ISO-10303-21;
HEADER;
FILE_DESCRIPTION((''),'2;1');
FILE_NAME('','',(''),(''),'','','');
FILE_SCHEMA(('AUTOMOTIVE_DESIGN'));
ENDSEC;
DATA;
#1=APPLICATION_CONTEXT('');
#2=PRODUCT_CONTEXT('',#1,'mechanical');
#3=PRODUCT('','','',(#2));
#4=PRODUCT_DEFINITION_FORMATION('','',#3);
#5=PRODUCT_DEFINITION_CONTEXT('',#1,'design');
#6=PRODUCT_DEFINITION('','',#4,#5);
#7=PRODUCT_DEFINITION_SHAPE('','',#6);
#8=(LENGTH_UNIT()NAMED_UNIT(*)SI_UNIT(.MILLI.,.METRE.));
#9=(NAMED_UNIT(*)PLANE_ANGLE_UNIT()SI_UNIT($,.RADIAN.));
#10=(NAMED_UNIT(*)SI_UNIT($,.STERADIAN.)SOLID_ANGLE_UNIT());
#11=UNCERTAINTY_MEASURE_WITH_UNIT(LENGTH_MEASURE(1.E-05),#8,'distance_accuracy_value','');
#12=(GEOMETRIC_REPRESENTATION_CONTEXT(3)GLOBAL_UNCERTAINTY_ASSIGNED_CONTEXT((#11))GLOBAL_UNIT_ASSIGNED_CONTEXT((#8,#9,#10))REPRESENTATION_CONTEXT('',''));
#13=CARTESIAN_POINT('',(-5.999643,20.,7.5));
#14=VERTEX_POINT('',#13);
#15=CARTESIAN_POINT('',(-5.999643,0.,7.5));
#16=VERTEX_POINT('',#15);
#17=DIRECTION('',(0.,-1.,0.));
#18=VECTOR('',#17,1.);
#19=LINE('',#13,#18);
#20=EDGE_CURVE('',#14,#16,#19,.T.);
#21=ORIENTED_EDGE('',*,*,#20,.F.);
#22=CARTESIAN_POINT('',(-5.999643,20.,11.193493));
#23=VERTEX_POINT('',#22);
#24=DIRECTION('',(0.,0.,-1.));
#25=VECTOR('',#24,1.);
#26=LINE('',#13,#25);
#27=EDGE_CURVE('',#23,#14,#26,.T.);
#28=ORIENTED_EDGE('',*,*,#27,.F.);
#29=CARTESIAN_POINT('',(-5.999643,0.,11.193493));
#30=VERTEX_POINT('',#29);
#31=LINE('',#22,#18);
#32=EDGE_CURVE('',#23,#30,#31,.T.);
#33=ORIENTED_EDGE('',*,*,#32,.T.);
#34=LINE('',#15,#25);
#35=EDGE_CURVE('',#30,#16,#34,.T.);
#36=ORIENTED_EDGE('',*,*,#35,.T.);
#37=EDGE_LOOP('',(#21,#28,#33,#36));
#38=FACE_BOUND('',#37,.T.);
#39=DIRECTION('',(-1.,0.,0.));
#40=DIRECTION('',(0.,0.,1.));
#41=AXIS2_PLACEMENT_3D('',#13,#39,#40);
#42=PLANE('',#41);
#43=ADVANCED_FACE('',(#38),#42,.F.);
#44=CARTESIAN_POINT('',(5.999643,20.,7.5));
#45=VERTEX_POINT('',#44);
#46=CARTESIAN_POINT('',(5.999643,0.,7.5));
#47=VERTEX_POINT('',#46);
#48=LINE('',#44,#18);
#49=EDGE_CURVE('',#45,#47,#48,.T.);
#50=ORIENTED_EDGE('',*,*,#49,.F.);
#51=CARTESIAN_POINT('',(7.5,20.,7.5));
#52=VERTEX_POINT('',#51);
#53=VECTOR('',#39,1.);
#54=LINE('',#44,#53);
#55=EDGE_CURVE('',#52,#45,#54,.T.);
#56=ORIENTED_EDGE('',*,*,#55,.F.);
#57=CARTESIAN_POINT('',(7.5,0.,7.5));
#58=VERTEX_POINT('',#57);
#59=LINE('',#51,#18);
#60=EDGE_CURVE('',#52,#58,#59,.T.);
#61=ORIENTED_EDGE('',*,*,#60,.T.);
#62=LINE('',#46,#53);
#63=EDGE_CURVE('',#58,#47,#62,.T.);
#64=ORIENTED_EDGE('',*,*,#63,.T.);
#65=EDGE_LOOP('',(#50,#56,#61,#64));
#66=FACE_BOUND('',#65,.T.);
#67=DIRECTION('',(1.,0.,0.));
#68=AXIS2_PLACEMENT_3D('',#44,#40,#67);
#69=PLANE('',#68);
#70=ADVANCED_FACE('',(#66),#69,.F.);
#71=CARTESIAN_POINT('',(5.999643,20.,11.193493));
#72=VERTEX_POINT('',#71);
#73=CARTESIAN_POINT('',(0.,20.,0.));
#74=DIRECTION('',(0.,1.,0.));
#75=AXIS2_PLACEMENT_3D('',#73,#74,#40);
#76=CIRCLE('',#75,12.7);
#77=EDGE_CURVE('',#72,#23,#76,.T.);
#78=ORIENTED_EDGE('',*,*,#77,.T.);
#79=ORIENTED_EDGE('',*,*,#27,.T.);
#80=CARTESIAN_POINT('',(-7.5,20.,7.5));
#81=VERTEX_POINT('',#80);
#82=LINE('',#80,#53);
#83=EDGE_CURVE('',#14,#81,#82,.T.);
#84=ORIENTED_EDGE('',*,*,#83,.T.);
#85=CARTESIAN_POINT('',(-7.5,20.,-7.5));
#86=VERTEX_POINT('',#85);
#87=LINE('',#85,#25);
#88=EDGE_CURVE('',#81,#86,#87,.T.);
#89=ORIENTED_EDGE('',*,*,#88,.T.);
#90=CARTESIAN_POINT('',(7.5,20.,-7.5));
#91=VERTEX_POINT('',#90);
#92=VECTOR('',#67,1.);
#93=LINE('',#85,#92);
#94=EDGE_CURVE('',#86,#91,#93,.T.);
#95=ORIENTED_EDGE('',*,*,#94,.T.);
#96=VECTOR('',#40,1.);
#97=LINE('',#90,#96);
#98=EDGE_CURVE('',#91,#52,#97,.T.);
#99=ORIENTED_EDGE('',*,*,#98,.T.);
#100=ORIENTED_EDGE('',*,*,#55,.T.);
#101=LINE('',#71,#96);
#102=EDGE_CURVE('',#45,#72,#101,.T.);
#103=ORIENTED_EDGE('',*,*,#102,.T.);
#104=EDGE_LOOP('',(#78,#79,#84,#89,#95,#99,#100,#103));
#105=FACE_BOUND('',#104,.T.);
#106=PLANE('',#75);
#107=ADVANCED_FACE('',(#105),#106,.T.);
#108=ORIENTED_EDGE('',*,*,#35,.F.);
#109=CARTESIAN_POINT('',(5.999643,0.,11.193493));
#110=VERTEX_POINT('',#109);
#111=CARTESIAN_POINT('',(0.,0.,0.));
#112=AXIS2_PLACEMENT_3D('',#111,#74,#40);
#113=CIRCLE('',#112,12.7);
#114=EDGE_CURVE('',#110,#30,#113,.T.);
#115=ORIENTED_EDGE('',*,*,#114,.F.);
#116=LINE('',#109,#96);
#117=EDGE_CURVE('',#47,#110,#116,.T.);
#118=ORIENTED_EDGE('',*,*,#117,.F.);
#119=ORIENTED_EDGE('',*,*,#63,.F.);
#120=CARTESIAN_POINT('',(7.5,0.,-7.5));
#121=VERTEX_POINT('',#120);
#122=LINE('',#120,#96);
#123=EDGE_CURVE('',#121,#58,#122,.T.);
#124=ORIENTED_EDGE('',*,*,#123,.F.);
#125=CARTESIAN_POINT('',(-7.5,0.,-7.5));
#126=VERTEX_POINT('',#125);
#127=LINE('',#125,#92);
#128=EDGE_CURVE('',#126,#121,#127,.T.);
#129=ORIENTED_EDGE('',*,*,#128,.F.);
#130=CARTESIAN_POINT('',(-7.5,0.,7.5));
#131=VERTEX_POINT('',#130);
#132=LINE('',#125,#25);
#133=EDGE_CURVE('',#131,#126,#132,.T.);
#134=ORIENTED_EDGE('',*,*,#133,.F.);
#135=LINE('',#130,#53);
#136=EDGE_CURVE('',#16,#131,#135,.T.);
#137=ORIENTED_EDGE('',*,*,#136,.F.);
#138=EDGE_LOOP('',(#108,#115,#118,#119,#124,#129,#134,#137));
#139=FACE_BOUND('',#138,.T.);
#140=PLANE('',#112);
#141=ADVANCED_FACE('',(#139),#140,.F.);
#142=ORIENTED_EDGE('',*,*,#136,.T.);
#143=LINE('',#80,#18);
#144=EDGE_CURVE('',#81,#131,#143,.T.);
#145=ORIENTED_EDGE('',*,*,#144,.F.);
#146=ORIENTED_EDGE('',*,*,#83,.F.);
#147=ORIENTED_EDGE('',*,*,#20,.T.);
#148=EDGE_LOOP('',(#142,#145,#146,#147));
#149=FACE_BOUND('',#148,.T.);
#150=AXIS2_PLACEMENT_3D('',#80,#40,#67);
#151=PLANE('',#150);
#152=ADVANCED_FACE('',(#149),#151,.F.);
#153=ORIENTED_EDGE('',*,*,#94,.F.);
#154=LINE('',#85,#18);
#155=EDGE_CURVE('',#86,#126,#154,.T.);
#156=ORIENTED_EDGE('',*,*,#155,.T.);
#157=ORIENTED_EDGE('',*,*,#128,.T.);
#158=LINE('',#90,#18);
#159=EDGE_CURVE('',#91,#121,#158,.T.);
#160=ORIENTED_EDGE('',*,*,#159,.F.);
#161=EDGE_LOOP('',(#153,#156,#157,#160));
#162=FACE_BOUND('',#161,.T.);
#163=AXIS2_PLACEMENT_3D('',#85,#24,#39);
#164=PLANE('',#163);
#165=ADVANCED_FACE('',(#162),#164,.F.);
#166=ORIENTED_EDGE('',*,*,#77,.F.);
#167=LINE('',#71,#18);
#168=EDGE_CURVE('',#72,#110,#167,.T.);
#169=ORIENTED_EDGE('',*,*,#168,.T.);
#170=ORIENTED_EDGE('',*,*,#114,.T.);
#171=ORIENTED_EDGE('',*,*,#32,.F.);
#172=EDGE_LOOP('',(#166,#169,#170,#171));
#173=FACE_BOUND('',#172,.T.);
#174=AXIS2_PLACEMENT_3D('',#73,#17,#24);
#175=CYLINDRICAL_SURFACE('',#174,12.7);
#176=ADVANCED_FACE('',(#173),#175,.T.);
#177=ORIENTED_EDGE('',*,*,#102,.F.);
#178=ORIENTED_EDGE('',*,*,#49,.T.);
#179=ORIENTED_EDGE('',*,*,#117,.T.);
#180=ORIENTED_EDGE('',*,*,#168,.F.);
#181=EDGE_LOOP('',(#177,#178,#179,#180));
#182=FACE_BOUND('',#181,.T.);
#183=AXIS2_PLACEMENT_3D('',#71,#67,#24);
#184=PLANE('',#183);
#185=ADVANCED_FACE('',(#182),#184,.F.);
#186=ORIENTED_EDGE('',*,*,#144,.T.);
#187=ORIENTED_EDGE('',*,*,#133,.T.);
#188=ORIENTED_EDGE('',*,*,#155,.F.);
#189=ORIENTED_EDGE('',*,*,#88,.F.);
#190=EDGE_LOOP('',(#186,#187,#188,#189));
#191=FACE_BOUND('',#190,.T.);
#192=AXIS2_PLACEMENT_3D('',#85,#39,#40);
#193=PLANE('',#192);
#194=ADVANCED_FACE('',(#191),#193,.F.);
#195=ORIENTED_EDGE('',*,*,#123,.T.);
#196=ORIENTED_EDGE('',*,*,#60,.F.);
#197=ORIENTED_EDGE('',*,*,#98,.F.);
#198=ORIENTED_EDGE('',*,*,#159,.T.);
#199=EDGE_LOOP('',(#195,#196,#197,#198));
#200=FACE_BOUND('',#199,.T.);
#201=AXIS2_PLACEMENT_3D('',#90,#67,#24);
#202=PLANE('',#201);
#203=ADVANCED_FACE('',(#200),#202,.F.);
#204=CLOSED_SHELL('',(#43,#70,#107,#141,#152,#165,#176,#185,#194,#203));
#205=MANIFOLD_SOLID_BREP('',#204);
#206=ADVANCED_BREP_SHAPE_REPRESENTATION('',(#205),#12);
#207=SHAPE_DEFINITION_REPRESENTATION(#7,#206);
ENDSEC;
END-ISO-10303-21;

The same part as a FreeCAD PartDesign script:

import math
import FreeCAD as App
import Part
import Sketcher

doc = App.newDocument("Part")
params = doc.addObject("Spreadsheet::Sheet", "Params")
for row, (alias, value) in enumerate([
    ("sketch1_radius", "12.7 mm"),
    ("sketch1_width", "15 mm"),
    ("pad1_length", "20 mm"),
], start=1):
    params.set(f"A{row}", alias)
    params.set(f"B{row}", "=" + value)
    params.setAlias(f"B{row}", alias)

body = doc.addObject("PartDesign::Body", "Body")

sketch1 = body.newObject("Sketcher::SketchObject", "Sketch")
sketch1.AttachmentSupport = (doc.getObject("XZ_Plane"), [""])
sketch1.MapMode = "FlatFace"
sketch1.addGeometry([
    Part.LineSegment(App.Vector(7.5, 7.5, 0), App.Vector(6, 7.5, 0)),
    Part.LineSegment(App.Vector(6, 7.5, 0), App.Vector(6, 11.2, 0)),
    Part.ArcOfCircle(Part.Circle(App.Vector(0, 0, 0), App.Vector(0, 0, 1), 12.7), math.radians(118), math.radians(422)),
    Part.LineSegment(App.Vector(-6, 11.2, 0), App.Vector(-6, 7.5, 0)),
    Part.LineSegment(App.Vector(-6, 7.5, 0), App.Vector(-7.5, 7.5, 0)),
    Part.LineSegment(App.Vector(-7.5, 7.5, 0), App.Vector(-7.5, -7.5, 0)),
    Part.LineSegment(App.Vector(-7.5, -7.5, 0), App.Vector(7.5, -7.5, 0)),
    Part.LineSegment(App.Vector(7.5, -7.5, 0), App.Vector(7.5, 7.5, 0)),
], False)
sketch1.addConstraint([
    Sketcher.Constraint("Coincident", 0, 2, 1, 1),
    Sketcher.Constraint("Coincident", 1, 2, 2, 2),
    Sketcher.Constraint("Coincident", 2, 1, 3, 1),
    Sketcher.Constraint("Coincident", 3, 2, 4, 1),
    Sketcher.Constraint("Coincident", 4, 2, 5, 1),
    Sketcher.Constraint("Coincident", 5, 2, 6, 1),
    Sketcher.Constraint("Coincident", 6, 2, 7, 1),
    Sketcher.Constraint("Coincident", 7, 2, 0, 1),
    Sketcher.Constraint("Horizontal", 0),
    Sketcher.Constraint("Vertical", 1),
    Sketcher.Constraint("Vertical", 3),
    Sketcher.Constraint("Horizontal", 4),
    Sketcher.Constraint("Vertical", 5),
    Sketcher.Constraint("Horizontal", 6),
    Sketcher.Constraint("Vertical", 7),
    Sketcher.Constraint("Coincident", 2, 3, -1, 1),
    Sketcher.Constraint("Symmetric", 4, 2, 6, 2, -1, 1),
    Sketcher.Constraint("Symmetric", 0, 2, 3, 2, -2),
    Sketcher.Constraint("Equal", 6, 5),
    Sketcher.Constraint("Radius", 2, 12.7),
    Sketcher.Constraint("DistanceX", 6, 1, 6, 2, 15.0),
    Sketcher.Constraint("DistanceX", 0, 2, 0, 1, 1.500357),
])
sketch1.setExpression("Constraints[19]", "Params.sketch1_radius")
sketch1.setExpression("Constraints[20]", "Params.sketch1_width")
pad1 = body.newObject("PartDesign::Pad", "Pad")
pad1.Profile = sketch1
pad1.setExpression("Length", "Params.pad1_length")
pad1.Reversed = True

doc.recompute()
